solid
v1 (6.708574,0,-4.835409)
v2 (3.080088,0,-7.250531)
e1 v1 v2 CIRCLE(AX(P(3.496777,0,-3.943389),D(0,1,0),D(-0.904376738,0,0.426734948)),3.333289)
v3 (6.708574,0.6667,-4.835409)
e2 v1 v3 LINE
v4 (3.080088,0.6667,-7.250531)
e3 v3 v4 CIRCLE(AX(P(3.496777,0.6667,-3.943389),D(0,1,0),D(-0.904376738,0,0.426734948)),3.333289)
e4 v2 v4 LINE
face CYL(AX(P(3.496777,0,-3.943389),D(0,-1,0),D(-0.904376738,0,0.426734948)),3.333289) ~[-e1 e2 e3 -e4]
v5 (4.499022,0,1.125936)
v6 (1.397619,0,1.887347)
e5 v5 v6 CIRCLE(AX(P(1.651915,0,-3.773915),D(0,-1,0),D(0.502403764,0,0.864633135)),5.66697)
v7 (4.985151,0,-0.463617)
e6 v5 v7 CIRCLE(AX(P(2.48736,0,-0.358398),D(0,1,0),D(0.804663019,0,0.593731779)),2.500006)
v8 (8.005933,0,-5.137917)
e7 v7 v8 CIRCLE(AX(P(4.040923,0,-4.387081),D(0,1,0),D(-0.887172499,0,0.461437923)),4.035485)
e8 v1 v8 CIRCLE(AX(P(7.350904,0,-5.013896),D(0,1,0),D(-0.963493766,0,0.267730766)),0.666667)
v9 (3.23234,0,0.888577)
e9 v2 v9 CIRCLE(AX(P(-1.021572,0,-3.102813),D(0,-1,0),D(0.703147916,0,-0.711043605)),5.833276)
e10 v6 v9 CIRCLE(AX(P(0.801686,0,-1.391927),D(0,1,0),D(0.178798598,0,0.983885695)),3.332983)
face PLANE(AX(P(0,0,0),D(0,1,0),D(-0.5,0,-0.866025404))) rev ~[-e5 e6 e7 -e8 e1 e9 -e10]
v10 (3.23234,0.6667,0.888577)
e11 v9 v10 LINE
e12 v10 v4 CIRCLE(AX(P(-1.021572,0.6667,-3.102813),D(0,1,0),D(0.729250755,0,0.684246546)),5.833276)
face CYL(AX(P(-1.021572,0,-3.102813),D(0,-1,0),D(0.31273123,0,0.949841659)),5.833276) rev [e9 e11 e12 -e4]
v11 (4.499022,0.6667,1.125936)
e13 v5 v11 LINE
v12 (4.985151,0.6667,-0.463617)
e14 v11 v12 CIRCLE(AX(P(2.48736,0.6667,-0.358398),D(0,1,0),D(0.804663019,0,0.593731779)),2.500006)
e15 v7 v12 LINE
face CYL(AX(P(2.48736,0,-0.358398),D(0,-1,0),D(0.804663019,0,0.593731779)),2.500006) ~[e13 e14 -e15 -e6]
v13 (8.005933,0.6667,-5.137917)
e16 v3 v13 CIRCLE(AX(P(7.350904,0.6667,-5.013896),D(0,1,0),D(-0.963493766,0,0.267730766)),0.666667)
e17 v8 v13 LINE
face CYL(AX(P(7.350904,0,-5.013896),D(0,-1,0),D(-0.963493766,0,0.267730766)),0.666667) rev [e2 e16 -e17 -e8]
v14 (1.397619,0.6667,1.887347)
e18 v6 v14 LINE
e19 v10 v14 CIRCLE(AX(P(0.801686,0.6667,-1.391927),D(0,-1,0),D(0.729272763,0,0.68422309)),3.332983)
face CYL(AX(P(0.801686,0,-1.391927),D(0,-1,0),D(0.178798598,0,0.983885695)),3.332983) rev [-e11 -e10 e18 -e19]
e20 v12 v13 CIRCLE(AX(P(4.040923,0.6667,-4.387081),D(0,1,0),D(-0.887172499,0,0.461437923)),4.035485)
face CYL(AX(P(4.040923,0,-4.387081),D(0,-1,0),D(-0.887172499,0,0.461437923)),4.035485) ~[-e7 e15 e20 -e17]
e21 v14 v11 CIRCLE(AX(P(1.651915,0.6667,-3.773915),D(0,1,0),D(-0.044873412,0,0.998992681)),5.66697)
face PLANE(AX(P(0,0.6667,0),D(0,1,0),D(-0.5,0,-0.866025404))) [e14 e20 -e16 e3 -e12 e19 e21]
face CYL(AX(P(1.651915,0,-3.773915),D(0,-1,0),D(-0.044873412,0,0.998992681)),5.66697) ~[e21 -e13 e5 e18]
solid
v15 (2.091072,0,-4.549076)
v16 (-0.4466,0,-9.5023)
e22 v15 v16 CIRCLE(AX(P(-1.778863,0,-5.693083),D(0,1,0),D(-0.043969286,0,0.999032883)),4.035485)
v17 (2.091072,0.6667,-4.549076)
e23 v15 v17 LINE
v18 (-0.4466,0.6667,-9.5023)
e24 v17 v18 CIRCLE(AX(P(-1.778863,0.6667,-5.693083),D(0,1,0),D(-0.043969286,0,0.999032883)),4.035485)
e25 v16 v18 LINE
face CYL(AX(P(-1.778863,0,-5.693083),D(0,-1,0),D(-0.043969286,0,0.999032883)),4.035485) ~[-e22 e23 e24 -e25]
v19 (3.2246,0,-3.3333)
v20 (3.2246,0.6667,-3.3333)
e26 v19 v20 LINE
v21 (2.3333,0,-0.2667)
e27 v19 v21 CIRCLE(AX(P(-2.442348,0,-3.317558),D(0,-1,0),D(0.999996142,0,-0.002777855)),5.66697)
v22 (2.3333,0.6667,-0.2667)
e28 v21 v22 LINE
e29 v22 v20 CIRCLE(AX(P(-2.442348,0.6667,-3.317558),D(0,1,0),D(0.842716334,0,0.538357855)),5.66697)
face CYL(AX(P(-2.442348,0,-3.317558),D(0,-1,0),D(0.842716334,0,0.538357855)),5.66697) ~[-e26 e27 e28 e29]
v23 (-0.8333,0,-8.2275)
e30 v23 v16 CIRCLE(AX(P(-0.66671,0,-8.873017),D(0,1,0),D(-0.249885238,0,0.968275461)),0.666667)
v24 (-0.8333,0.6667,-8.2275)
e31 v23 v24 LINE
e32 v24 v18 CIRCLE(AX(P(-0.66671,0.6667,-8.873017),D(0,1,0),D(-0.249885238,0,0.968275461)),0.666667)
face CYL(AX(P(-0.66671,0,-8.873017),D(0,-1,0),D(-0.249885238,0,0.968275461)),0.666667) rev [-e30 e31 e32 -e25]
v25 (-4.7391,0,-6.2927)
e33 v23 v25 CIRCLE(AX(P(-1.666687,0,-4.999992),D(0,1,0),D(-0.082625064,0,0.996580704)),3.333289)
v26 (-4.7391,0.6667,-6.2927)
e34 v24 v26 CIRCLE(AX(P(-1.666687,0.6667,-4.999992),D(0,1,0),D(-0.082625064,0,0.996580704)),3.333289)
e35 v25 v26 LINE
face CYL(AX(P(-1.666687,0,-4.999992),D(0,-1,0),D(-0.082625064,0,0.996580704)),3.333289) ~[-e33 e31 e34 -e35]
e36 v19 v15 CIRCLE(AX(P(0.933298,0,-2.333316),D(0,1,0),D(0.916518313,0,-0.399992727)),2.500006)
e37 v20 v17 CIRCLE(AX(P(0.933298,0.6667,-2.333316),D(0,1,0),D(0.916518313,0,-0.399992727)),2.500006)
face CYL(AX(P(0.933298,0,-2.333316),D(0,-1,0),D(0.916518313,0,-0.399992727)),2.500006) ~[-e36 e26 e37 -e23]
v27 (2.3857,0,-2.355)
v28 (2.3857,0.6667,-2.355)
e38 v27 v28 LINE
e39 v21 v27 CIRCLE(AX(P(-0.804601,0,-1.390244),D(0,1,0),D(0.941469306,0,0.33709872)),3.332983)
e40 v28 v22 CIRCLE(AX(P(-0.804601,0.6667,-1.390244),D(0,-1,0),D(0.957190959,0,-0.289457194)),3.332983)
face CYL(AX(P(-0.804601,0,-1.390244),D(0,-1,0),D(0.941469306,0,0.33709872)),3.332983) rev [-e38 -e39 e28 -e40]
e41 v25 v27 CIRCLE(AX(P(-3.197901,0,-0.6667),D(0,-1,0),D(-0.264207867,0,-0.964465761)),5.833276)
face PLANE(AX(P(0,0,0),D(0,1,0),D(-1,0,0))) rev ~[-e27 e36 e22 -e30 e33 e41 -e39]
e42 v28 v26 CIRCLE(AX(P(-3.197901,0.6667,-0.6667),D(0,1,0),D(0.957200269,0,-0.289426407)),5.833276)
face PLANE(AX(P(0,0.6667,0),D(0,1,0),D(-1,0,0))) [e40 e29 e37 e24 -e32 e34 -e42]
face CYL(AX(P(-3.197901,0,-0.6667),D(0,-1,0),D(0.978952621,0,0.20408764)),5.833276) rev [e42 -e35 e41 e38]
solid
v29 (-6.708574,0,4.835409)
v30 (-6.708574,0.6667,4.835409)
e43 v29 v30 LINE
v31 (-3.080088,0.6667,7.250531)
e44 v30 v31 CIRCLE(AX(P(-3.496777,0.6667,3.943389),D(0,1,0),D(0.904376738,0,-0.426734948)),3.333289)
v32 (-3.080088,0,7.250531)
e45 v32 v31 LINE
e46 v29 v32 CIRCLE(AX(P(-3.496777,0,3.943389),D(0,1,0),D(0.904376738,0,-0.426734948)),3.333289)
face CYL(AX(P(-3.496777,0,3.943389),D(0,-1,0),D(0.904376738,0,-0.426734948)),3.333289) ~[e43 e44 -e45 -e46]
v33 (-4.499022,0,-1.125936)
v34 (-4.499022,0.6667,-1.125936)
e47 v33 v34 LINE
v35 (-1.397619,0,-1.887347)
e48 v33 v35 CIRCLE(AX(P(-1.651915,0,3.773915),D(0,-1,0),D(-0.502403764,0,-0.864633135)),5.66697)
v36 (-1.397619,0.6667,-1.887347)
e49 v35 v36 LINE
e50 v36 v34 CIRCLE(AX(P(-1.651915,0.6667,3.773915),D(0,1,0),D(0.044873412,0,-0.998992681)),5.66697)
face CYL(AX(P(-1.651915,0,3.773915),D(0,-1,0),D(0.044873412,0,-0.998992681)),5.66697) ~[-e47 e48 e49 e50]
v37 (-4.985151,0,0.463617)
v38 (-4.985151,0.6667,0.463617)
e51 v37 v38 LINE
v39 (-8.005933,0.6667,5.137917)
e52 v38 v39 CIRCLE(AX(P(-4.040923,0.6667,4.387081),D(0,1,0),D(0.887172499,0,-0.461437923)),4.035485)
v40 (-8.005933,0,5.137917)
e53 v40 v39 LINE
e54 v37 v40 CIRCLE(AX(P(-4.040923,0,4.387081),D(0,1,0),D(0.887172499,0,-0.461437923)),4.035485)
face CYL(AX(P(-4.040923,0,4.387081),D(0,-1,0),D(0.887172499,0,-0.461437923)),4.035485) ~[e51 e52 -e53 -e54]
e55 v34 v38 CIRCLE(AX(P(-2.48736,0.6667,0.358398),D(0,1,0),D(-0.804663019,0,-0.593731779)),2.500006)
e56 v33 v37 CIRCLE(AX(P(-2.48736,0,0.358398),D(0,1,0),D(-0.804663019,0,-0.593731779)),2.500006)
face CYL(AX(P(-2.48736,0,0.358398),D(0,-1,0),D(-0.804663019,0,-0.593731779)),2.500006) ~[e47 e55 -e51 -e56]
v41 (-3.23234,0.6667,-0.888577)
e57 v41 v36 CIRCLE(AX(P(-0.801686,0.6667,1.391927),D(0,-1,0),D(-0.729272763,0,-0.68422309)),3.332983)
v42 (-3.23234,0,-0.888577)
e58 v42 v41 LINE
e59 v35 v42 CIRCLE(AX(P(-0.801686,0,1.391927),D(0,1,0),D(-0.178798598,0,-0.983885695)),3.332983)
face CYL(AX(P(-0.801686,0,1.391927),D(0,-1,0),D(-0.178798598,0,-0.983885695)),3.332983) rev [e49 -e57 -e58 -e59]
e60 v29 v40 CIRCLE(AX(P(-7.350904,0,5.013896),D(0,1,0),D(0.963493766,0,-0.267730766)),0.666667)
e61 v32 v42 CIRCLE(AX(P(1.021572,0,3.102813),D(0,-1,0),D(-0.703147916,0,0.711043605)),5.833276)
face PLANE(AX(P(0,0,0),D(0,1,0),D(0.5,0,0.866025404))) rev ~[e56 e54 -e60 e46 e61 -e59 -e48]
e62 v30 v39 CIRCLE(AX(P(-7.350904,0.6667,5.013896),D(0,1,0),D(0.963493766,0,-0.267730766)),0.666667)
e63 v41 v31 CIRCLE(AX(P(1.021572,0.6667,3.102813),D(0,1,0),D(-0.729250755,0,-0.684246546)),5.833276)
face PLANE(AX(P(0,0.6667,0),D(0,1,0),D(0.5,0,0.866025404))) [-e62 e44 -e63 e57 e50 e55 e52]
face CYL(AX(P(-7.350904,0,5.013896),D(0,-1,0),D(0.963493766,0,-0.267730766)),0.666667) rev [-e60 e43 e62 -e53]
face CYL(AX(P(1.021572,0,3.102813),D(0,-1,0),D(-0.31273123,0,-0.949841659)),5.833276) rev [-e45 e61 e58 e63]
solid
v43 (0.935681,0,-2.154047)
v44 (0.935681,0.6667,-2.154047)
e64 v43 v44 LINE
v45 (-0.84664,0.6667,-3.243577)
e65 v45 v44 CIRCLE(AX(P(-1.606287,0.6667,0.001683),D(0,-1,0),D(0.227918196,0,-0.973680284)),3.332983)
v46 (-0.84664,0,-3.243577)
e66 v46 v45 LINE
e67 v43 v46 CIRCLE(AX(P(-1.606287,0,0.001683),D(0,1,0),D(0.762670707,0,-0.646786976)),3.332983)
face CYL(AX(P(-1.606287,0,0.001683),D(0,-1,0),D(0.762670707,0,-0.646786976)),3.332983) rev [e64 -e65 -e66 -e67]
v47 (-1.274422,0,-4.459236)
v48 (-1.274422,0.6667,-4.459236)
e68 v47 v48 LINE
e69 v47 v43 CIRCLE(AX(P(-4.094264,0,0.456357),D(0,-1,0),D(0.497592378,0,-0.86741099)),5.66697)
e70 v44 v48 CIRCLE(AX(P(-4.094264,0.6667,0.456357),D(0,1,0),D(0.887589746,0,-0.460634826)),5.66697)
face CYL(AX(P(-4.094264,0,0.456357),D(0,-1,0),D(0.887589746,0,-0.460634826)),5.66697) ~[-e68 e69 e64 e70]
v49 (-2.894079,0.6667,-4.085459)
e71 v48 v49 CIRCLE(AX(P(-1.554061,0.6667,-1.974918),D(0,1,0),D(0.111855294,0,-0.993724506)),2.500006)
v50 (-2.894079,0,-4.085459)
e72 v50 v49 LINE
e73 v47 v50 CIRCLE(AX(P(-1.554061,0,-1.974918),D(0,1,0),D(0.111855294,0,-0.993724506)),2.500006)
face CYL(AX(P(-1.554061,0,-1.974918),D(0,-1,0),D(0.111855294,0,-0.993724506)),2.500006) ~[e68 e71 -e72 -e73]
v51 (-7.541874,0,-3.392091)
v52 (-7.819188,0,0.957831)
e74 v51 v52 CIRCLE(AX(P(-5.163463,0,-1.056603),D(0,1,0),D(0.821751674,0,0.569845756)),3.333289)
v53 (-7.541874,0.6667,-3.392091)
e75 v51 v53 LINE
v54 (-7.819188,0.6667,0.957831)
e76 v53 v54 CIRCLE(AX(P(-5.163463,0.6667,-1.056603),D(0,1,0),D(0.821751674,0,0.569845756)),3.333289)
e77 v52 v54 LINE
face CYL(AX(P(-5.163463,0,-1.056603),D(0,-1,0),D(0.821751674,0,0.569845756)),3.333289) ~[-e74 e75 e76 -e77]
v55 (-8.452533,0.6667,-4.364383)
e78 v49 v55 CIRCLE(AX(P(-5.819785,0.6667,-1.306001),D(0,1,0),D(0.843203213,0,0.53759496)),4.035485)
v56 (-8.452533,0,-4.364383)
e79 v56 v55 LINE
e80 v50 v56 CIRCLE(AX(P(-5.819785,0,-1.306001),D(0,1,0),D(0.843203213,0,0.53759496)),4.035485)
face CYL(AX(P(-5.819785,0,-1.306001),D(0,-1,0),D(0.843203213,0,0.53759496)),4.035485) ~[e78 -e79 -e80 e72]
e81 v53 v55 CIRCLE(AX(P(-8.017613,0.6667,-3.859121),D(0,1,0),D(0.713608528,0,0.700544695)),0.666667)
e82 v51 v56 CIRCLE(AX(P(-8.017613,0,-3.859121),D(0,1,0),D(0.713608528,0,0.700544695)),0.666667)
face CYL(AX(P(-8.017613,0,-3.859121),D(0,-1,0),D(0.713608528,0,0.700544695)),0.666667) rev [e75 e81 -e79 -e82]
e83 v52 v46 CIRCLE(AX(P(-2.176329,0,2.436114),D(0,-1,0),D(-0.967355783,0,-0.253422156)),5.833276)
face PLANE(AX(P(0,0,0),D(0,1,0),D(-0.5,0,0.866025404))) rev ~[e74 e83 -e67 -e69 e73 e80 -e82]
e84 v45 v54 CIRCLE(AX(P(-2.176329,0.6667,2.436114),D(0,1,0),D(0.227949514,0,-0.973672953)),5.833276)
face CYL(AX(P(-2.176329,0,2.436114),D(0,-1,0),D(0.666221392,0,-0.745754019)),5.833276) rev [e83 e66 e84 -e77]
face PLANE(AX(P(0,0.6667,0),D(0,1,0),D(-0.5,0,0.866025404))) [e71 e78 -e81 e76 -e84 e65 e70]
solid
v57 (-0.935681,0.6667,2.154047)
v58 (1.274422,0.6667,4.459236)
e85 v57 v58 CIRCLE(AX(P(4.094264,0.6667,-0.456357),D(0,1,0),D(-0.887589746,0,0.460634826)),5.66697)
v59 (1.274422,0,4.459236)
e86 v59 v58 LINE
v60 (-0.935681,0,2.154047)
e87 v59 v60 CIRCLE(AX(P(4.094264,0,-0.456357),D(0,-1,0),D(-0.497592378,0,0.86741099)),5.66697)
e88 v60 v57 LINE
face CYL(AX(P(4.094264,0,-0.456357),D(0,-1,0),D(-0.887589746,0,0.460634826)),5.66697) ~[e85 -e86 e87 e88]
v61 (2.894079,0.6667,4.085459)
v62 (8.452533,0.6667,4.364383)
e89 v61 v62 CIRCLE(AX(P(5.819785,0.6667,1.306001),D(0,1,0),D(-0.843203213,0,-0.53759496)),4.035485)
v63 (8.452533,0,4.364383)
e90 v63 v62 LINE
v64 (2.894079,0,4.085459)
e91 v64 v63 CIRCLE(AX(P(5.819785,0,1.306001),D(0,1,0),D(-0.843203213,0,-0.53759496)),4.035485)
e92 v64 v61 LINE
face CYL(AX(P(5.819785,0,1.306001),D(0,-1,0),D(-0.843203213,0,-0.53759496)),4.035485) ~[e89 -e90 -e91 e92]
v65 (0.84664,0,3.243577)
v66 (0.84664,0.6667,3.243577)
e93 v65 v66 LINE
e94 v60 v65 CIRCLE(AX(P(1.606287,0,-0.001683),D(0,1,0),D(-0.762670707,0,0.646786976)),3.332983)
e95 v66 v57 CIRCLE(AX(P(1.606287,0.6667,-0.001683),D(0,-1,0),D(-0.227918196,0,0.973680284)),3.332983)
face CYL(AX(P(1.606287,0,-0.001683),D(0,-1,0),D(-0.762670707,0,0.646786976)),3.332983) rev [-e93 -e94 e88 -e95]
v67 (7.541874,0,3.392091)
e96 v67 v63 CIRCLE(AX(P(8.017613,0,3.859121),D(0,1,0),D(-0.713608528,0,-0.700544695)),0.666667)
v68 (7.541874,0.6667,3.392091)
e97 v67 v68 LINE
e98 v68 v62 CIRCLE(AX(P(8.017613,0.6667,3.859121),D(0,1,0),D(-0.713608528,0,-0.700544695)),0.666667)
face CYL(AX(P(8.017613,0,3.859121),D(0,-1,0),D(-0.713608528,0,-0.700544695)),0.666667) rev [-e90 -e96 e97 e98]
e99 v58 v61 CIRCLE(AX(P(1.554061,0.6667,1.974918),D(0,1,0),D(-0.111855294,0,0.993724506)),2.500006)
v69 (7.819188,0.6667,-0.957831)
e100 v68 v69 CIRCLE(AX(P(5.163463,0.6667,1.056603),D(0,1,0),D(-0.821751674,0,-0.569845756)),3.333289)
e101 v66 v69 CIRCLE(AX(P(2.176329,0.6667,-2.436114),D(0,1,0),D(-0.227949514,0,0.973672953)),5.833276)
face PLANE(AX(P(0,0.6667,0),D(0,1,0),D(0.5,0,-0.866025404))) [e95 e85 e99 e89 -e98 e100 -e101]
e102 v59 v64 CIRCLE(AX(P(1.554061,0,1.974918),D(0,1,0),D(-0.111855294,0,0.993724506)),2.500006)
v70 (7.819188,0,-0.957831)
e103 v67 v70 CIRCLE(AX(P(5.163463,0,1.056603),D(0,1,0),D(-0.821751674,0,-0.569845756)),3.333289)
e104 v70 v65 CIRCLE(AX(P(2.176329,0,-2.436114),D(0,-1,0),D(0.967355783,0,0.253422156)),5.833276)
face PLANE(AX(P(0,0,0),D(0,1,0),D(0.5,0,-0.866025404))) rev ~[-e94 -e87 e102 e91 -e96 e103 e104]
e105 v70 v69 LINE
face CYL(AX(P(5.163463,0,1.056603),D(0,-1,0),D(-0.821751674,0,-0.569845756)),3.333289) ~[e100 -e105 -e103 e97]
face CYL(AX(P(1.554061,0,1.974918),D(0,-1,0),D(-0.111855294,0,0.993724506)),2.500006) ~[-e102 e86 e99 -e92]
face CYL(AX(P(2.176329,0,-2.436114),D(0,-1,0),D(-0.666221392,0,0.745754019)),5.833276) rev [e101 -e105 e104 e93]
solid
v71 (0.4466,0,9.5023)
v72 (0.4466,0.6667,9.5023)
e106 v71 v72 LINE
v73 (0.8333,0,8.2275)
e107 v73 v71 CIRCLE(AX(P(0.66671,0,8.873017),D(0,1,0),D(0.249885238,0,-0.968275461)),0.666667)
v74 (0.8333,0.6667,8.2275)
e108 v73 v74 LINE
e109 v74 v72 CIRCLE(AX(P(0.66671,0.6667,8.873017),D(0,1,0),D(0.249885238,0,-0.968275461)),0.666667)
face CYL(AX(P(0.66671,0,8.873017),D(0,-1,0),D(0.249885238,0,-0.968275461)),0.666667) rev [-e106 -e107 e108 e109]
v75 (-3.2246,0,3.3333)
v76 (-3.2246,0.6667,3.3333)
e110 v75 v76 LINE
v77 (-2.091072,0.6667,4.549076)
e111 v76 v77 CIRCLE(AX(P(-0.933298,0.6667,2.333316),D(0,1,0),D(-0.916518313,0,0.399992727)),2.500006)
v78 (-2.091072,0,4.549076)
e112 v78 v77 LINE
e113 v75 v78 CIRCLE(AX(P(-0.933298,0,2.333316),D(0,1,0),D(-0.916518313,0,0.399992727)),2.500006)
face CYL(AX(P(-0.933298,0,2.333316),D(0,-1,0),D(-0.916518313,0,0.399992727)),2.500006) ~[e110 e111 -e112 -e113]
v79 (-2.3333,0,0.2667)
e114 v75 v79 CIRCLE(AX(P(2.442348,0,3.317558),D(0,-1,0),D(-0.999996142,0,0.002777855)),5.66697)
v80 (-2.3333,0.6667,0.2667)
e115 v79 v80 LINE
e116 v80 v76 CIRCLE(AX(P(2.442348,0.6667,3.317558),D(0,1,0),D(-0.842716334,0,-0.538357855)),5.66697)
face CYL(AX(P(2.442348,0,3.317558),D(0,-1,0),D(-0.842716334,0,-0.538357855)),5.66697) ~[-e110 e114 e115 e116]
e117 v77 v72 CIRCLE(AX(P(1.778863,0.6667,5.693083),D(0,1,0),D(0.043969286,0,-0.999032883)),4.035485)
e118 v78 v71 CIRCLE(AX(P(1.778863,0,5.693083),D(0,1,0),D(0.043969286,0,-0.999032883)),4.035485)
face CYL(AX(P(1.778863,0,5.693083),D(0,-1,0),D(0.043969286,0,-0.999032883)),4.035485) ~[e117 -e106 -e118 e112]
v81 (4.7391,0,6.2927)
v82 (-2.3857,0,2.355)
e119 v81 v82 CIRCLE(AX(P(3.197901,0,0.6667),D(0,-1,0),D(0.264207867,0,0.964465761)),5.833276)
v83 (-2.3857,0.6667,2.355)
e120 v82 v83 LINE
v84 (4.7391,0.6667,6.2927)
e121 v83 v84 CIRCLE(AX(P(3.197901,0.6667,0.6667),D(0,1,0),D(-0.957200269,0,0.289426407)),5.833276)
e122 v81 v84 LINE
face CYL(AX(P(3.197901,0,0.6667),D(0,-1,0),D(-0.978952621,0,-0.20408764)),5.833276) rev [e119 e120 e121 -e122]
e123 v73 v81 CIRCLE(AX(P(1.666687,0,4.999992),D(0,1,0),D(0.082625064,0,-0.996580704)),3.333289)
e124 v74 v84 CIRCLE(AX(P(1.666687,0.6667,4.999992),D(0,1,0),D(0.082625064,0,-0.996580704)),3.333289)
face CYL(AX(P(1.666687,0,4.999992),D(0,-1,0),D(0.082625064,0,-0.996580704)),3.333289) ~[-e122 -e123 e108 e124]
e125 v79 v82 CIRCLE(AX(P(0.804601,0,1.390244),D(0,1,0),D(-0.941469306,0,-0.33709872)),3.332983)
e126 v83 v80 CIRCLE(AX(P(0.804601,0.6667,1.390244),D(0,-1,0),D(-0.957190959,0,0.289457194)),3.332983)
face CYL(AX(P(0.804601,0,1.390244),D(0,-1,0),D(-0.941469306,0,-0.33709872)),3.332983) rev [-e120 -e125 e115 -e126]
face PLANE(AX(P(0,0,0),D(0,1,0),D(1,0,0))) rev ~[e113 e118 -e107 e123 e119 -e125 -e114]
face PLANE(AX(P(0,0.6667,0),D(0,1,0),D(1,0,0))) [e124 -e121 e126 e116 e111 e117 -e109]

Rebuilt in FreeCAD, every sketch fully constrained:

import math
import FreeCAD as App
import Part
import Sketcher
from FreeCAD import Vector

doc = App.newDocument("Part")
body = doc.addObject("PartDesign::Body", "Body")
body.AllowCompound = True

# Sketch on XZ plane
sketch1 = body.newObject("Sketcher::SketchObject", "Sketch")
sketch1.AttachmentSupport = (doc.getObject("XZ_Plane"), [""])
sketch1.MapMode = "FlatFace"
sketch1.addGeometry([
    Part.ArcOfCircle(Part.Circle(Vector(-0.8, -1.4, 0), Vector(0, 0, 1), 3.3), math.radians(-17), math.radians(20)),  # 0
    Part.ArcOfCircle(Part.Circle(Vector(-2.4, -3.3, 0), Vector(0, 0, 1), 5.7), math.radians(0), math.radians(33)),  # 1
    Part.ArcOfCircle(Part.Circle(Vector(0.9, -2.3, 0), Vector(0, 0, 1), 2.5), math.radians(-62), math.radians(-24)),  # 2
    Part.ArcOfCircle(Part.Circle(Vector(-1.8, -5.7, 0), Vector(0, 0, 1), 4), math.radians(-71), math.radians(16)),  # 3
    Part.ArcOfCircle(Part.Circle(Vector(-0.7, -8.9, 0), Vector(0, 0, 1), 0.7), math.radians(-71), math.radians(104)),  # 4
    Part.ArcOfCircle(Part.Circle(Vector(-1.7, -5, 0), Vector(0, 0, 1), 3.3), math.radians(-157), math.radians(-76)),  # 5
    Part.ArcOfCircle(Part.Circle(Vector(-3.2, -0.7, 0), Vector(0, 0, 1), 5.8), math.radians(-105), math.radians(-17)),  # 6
], False)
sketch1.addConstraint([
    Sketcher.Constraint("Coincident", 0, 2, 1, 2),
    Sketcher.Constraint("Coincident", 1, 1, 2, 2),
    Sketcher.Constraint("Coincident", 2, 1, 3, 2),
    Sketcher.Constraint("Tangent", 3, 1, 4, 1),
    Sketcher.Constraint("Tangent", 4, 2, 5, 2),
    Sketcher.Constraint("Coincident", 5, 1, 6, 1),
    Sketcher.Constraint("Tangent", 6, 2, 0, 1),
    Sketcher.Constraint("Equal", 0, 5),
    Sketcher.Constraint("Radius", 2, 2.5),
    Sketcher.Constraint("DistanceY", 5, 3, -1, 1, 5.0),
    Sketcher.Constraint("DistanceX", 5, 3, 4, 3, 1.0),
    Sketcher.Constraint("DistanceY", 1, 1, 2, 3, 1.0),
    Sketcher.Constraint("Radius", 0, 3.3333),
    Sketcher.Constraint("Radius", 1, 5.6666),
    Sketcher.Constraint("Radius", 4, 0.6667),
    Sketcher.Constraint("Radius", 6, 5.8333),
    Sketcher.Constraint("DistanceX", 5, 3, 0, 2, 4.0),
    Sketcher.Constraint("DistanceX", -1, 1, 2, 3, 0.9333),
    Sketcher.Constraint("DistanceY", 2, 3, -1, 1, 2.3333),
    Sketcher.Constraint("DistanceX", 4, 3, -1, 1, 0.6667),
    Sketcher.Constraint("DistanceY", 6, 3, -1, 1, 0.6667),
    Sketcher.Constraint("DistanceY", 0, 2, -1, 1, 0.2667),
    Sketcher.Constraint("Radius", 3, 4.0355),
    Sketcher.Constraint("DistanceY", 4, 3, 3, 3, 3.18),
    Sketcher.Constraint("DistanceX", 0, 3, -1, 1, 0.805),
])
pad1 = body.newObject("PartDesign::Pad", "Pad")
pad1.Profile = sketch1
pad1.Length = 0.6667
pad1.Reversed = True
doc.recompute()

polarpattern = body.newObject("PartDesign::PolarPattern", "PolarPattern")
polarpattern.Originals = [pad1]
polarpattern.Axis = (doc.getObject("Y_Axis"), [""])
polarpattern.Angle = 360
polarpattern.Occurrences = 6
body.Tip = polarpattern

doc.recompute()
